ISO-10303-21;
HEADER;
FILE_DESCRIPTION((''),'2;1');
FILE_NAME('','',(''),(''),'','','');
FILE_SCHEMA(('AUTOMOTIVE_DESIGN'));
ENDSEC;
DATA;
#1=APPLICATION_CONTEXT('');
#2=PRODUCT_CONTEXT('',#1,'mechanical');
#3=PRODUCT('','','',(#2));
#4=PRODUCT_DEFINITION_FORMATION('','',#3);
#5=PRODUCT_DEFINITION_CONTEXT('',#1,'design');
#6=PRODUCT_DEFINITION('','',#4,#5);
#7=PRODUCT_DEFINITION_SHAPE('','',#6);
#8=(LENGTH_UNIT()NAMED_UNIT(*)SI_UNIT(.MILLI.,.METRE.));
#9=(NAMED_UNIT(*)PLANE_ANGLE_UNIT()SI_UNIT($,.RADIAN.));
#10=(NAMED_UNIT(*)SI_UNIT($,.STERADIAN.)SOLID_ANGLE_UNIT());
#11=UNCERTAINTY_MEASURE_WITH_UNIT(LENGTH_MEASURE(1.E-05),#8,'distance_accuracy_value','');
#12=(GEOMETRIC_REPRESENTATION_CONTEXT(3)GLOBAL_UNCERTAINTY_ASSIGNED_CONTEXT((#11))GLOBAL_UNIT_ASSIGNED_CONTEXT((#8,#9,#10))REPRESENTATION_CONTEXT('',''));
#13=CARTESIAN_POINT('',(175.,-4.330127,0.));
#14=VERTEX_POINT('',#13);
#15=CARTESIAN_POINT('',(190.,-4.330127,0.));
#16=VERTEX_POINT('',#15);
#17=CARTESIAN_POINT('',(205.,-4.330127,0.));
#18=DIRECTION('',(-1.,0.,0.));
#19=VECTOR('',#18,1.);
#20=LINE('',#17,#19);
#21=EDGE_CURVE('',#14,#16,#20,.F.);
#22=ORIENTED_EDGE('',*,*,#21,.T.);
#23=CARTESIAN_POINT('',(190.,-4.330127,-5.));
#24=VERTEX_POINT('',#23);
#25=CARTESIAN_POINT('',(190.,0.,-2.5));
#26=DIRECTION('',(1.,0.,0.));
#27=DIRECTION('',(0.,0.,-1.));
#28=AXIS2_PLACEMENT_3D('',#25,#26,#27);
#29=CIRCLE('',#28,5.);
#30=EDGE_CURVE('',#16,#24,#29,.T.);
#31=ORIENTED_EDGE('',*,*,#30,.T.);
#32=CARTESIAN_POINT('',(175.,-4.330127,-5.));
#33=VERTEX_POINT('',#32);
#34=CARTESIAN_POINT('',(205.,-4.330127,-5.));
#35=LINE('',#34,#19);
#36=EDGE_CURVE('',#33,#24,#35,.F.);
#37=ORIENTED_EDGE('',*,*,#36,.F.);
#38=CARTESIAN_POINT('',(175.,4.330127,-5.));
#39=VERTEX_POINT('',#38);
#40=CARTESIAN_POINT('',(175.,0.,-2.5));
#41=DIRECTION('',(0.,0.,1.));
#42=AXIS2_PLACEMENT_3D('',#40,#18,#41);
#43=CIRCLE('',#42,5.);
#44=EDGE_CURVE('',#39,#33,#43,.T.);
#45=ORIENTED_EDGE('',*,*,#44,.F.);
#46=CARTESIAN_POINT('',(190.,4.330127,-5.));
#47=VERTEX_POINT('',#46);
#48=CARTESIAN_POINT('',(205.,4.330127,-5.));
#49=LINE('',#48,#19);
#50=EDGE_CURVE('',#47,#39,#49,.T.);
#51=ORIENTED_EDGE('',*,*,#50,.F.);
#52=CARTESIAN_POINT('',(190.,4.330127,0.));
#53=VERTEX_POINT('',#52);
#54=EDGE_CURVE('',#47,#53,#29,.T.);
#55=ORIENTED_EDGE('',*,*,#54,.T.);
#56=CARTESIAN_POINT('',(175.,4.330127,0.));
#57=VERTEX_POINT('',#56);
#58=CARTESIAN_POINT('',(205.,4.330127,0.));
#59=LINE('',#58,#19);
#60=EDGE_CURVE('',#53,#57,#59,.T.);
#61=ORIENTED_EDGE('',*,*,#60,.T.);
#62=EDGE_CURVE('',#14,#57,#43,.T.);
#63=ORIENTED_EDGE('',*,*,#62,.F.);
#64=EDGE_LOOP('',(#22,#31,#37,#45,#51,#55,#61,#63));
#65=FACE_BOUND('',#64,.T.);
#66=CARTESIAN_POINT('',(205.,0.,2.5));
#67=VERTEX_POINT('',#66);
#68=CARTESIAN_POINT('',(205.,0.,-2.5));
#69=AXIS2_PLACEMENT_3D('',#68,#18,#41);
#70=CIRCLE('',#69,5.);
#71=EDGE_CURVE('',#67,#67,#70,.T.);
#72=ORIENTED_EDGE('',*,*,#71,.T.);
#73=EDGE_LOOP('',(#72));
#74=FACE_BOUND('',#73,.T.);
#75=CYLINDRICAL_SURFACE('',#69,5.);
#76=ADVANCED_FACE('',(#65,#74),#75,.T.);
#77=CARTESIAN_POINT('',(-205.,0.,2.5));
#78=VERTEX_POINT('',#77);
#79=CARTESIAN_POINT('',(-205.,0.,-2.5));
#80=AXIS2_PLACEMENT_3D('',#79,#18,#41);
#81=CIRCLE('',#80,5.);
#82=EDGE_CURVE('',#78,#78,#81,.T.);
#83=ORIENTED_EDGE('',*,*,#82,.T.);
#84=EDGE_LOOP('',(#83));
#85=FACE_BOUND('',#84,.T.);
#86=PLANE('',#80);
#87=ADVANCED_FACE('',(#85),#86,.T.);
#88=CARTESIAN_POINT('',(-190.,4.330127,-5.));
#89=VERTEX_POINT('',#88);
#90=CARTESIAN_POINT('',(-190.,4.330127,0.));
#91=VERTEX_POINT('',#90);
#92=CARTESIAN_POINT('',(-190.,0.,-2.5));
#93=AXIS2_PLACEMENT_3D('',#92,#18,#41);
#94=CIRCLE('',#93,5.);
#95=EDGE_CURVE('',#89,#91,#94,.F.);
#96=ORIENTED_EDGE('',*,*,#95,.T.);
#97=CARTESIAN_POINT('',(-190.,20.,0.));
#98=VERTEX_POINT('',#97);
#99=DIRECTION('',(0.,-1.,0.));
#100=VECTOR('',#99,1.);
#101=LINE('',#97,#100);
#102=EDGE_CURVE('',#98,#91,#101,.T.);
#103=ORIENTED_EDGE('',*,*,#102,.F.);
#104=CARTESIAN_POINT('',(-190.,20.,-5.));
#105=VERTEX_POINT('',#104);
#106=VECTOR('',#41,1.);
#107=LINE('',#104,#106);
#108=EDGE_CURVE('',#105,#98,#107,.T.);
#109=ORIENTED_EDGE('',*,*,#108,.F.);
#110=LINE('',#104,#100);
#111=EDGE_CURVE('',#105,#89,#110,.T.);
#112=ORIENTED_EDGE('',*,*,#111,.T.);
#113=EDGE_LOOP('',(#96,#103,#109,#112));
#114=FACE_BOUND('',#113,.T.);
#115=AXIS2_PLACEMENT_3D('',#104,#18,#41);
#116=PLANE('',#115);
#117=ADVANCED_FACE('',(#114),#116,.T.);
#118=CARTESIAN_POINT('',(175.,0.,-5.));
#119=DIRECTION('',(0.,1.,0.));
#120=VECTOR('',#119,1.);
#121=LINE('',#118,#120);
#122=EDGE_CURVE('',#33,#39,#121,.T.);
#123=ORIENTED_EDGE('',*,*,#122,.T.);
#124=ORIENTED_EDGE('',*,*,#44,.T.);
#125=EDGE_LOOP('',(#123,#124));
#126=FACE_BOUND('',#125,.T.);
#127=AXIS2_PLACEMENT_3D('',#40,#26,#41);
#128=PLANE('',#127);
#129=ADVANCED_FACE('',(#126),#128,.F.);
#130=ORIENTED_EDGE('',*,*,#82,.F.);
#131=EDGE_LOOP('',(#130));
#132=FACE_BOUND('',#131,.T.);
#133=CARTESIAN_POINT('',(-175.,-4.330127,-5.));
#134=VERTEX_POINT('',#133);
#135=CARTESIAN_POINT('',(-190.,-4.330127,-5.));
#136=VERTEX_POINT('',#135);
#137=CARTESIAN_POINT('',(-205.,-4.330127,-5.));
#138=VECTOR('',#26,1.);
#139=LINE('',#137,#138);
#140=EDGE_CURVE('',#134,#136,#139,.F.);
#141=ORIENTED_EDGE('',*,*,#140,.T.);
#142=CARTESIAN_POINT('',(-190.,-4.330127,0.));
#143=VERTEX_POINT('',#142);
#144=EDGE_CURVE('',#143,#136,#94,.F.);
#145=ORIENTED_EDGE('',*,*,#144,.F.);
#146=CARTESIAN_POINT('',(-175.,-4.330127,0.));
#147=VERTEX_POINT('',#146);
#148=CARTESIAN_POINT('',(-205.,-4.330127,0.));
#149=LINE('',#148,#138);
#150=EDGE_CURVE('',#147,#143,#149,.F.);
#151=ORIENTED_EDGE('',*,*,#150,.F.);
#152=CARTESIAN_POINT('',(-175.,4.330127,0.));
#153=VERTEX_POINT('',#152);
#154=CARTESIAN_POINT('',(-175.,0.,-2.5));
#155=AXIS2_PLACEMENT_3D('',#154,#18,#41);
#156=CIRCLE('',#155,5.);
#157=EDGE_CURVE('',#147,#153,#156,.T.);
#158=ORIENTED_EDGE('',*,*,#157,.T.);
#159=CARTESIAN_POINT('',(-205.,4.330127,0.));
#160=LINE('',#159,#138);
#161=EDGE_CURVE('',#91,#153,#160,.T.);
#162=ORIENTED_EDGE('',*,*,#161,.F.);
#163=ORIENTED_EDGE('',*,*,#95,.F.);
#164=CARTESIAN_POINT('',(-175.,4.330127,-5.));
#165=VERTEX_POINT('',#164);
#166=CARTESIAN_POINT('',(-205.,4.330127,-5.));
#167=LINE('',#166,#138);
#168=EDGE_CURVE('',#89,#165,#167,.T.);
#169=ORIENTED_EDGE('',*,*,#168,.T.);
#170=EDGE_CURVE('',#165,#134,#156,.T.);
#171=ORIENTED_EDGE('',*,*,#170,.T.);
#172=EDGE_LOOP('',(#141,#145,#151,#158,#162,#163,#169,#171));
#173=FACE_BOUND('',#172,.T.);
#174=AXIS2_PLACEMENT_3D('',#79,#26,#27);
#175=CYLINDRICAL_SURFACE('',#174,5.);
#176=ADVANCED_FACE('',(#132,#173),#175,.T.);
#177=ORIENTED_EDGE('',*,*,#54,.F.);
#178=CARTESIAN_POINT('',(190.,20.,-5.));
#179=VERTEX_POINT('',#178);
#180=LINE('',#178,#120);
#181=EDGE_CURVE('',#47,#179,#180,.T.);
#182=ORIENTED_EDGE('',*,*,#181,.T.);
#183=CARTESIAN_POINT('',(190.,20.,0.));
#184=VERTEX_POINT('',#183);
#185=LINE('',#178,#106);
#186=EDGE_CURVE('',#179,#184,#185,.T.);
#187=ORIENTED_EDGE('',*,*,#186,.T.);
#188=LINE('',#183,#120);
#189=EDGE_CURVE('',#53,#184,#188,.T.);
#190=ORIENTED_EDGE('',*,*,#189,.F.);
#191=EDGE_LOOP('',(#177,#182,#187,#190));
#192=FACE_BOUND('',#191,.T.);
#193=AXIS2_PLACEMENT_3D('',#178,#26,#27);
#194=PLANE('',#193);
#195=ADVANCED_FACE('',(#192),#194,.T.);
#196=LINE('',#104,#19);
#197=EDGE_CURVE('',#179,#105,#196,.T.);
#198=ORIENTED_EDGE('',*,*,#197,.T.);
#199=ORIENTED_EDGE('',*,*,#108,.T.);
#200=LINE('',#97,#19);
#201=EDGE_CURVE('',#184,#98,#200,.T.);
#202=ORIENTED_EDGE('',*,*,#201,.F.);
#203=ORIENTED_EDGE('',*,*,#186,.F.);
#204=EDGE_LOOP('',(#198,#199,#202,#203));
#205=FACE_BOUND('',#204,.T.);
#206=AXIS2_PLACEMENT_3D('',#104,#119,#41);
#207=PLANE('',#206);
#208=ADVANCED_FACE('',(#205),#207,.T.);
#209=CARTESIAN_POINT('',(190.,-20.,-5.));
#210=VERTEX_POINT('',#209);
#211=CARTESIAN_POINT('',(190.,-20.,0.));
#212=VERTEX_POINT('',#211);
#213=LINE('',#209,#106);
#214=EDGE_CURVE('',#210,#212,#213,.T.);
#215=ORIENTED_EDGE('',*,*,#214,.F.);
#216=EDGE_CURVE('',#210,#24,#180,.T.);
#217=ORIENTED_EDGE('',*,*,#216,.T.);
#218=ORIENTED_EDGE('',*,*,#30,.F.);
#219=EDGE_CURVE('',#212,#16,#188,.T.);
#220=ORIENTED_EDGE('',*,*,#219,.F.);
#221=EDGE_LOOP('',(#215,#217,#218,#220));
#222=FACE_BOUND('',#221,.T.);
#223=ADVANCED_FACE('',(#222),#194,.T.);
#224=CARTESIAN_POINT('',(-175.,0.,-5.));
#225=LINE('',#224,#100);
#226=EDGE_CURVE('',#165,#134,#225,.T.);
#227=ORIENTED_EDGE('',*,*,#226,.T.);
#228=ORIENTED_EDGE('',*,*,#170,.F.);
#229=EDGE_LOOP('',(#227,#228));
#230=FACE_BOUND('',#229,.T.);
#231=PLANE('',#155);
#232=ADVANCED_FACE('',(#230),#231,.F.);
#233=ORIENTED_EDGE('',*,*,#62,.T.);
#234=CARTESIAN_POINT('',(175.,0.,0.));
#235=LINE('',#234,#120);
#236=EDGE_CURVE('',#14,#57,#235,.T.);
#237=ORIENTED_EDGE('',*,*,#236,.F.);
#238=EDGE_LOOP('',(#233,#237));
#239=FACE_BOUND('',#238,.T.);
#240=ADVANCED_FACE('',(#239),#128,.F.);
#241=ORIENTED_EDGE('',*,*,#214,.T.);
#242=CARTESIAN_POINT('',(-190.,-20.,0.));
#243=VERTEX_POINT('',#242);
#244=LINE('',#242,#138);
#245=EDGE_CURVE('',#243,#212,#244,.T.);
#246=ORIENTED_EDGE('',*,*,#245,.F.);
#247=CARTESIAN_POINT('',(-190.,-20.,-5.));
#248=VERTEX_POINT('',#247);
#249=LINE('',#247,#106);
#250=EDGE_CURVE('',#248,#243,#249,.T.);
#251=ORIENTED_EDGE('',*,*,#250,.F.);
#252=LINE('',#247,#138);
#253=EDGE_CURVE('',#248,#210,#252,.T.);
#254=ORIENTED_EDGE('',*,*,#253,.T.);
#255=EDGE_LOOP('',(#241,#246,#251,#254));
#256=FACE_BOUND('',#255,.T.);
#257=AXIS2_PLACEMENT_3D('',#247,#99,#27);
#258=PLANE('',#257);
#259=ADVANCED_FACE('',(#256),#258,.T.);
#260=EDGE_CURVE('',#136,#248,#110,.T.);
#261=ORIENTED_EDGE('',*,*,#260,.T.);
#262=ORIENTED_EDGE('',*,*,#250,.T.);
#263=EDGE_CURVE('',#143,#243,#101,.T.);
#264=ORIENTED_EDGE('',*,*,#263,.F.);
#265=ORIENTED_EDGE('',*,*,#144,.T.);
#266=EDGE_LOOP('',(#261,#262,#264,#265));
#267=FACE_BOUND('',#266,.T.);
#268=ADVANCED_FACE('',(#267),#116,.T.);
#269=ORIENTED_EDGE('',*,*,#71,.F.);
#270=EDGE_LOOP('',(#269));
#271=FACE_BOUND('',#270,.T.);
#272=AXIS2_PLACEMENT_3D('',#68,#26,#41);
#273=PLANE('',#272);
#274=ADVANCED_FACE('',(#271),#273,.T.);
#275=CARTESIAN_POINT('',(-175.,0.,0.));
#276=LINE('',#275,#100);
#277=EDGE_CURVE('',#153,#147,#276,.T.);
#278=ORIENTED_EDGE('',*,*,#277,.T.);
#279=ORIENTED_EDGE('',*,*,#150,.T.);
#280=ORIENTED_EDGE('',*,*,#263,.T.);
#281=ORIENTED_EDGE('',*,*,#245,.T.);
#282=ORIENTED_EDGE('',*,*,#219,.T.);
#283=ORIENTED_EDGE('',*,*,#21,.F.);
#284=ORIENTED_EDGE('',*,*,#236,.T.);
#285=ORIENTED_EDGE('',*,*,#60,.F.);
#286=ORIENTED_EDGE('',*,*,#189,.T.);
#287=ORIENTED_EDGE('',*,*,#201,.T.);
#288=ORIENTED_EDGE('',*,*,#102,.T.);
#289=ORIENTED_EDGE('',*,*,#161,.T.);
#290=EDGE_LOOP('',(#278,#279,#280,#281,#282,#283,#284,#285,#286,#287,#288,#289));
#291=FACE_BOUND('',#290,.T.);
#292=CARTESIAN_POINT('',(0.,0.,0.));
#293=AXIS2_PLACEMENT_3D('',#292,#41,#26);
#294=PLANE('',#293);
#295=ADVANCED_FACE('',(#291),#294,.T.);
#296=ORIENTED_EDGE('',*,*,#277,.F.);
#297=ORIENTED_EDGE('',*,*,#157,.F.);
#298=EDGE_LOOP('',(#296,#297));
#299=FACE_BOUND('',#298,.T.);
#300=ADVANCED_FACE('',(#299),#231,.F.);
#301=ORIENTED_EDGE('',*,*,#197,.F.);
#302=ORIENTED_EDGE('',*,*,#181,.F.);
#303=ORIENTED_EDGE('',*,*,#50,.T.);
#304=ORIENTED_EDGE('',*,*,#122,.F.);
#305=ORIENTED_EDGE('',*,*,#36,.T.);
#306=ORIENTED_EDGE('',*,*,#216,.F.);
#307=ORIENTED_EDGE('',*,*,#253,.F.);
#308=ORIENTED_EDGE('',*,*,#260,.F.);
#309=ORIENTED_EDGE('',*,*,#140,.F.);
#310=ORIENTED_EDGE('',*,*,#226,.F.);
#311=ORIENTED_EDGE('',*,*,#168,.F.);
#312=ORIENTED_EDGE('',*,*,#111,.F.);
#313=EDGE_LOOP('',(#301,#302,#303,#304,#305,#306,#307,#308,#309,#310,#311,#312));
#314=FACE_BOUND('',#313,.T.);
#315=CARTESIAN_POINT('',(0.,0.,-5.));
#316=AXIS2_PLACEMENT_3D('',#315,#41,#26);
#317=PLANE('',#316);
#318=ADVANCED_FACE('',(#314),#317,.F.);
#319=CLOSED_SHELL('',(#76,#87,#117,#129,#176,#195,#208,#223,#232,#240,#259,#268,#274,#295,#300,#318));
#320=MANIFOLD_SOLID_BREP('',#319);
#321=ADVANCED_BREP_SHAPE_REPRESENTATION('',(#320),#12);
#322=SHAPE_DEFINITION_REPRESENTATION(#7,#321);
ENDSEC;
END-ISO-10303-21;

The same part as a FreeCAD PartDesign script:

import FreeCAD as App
import Part
import Sketcher
from FreeCAD import Vector


def add_polygon(sketch, points):
    """Adds a closed chain of lines whose ends are joined by coincident constraints."""
    first, n = sketch.GeometryCount, len(points)
    for a, b in zip(points, points[1:] + points[:1]):
        sketch.addGeometry(Part.LineSegment(App.Vector(*a, 0), App.Vector(*b, 0)), False)
    for i in range(n):
        sketch.addConstraint(Sketcher.Constraint("Coincident", first + i, 2, first + (i + 1) % n, 1))

doc = App.newDocument("Part")
body = doc.addObject("PartDesign::Body", "Body")

sketch1 = body.newObject("Sketcher::SketchObject", "Sketch")
sketch1.AttachmentSupport = (doc.getObject("XY_Plane"), [""])
sketch1.MapMode = "FlatFace"
add_polygon(sketch1, [(-190, 20), (-190, -20), (190, -20), (190, 20)])
sketch1.addConstraint(Sketcher.Constraint("Vertical", 0))
sketch1.addConstraint(Sketcher.Constraint("Horizontal", 1))
sketch1.addConstraint(Sketcher.Constraint("Vertical", 2))
sketch1.addConstraint(Sketcher.Constraint("Horizontal", 3))
sketch1.addConstraint(Sketcher.Constraint("Symmetric", 0, 2, 2, 2, -1, 1))
sketch1.addConstraint(Sketcher.Constraint("DistanceX", 1, 1, 1, 2, 380.0))
sketch1.addConstraint(Sketcher.Constraint("DistanceY", 0, 2, 0, 1, 40.0))
pad1 = body.newObject("PartDesign::Pad", "Pad")
pad1.Profile = sketch1
pad1.Length = 5
pad1.Reversed = True

sketch2 = body.newObject("Sketcher::SketchObject", "Sketch001")
sketch2.AttachmentSupport = (doc.getObject("YZ_Plane"), [""])
sketch2.MapMode = "FlatFace"
sketch2.AttachmentOffset = App.Placement(Vector(0, 0, -190), App.Rotation())
sketch2.addGeometry(Part.Circle(Vector(0, -2, 0), Vector(0, 0, 1), 5), False)
sketch2.addConstraint(Sketcher.Constraint("PointOnObject", 0, 3, -2))
sketch2.addConstraint(Sketcher.Constraint("Diameter", 0, 10.0))
sketch2.addConstraint(Sketcher.Constraint("DistanceY", 0, 3, -1, 1, 2.5))
pad2 = body.newObject("PartDesign::Pad", "Pad001")
pad2.Profile = sketch2
pad2.Length = 30
pad2.Midplane = True
doc.recompute()

mirrored = body.newObject("PartDesign::Mirrored", "Mirrored")
mirrored.Originals = [pad2]
mirrored.MirrorPlane = (doc.getObject("YZ_Plane"), [""])
body.Tip = mirrored

doc.recompute()
